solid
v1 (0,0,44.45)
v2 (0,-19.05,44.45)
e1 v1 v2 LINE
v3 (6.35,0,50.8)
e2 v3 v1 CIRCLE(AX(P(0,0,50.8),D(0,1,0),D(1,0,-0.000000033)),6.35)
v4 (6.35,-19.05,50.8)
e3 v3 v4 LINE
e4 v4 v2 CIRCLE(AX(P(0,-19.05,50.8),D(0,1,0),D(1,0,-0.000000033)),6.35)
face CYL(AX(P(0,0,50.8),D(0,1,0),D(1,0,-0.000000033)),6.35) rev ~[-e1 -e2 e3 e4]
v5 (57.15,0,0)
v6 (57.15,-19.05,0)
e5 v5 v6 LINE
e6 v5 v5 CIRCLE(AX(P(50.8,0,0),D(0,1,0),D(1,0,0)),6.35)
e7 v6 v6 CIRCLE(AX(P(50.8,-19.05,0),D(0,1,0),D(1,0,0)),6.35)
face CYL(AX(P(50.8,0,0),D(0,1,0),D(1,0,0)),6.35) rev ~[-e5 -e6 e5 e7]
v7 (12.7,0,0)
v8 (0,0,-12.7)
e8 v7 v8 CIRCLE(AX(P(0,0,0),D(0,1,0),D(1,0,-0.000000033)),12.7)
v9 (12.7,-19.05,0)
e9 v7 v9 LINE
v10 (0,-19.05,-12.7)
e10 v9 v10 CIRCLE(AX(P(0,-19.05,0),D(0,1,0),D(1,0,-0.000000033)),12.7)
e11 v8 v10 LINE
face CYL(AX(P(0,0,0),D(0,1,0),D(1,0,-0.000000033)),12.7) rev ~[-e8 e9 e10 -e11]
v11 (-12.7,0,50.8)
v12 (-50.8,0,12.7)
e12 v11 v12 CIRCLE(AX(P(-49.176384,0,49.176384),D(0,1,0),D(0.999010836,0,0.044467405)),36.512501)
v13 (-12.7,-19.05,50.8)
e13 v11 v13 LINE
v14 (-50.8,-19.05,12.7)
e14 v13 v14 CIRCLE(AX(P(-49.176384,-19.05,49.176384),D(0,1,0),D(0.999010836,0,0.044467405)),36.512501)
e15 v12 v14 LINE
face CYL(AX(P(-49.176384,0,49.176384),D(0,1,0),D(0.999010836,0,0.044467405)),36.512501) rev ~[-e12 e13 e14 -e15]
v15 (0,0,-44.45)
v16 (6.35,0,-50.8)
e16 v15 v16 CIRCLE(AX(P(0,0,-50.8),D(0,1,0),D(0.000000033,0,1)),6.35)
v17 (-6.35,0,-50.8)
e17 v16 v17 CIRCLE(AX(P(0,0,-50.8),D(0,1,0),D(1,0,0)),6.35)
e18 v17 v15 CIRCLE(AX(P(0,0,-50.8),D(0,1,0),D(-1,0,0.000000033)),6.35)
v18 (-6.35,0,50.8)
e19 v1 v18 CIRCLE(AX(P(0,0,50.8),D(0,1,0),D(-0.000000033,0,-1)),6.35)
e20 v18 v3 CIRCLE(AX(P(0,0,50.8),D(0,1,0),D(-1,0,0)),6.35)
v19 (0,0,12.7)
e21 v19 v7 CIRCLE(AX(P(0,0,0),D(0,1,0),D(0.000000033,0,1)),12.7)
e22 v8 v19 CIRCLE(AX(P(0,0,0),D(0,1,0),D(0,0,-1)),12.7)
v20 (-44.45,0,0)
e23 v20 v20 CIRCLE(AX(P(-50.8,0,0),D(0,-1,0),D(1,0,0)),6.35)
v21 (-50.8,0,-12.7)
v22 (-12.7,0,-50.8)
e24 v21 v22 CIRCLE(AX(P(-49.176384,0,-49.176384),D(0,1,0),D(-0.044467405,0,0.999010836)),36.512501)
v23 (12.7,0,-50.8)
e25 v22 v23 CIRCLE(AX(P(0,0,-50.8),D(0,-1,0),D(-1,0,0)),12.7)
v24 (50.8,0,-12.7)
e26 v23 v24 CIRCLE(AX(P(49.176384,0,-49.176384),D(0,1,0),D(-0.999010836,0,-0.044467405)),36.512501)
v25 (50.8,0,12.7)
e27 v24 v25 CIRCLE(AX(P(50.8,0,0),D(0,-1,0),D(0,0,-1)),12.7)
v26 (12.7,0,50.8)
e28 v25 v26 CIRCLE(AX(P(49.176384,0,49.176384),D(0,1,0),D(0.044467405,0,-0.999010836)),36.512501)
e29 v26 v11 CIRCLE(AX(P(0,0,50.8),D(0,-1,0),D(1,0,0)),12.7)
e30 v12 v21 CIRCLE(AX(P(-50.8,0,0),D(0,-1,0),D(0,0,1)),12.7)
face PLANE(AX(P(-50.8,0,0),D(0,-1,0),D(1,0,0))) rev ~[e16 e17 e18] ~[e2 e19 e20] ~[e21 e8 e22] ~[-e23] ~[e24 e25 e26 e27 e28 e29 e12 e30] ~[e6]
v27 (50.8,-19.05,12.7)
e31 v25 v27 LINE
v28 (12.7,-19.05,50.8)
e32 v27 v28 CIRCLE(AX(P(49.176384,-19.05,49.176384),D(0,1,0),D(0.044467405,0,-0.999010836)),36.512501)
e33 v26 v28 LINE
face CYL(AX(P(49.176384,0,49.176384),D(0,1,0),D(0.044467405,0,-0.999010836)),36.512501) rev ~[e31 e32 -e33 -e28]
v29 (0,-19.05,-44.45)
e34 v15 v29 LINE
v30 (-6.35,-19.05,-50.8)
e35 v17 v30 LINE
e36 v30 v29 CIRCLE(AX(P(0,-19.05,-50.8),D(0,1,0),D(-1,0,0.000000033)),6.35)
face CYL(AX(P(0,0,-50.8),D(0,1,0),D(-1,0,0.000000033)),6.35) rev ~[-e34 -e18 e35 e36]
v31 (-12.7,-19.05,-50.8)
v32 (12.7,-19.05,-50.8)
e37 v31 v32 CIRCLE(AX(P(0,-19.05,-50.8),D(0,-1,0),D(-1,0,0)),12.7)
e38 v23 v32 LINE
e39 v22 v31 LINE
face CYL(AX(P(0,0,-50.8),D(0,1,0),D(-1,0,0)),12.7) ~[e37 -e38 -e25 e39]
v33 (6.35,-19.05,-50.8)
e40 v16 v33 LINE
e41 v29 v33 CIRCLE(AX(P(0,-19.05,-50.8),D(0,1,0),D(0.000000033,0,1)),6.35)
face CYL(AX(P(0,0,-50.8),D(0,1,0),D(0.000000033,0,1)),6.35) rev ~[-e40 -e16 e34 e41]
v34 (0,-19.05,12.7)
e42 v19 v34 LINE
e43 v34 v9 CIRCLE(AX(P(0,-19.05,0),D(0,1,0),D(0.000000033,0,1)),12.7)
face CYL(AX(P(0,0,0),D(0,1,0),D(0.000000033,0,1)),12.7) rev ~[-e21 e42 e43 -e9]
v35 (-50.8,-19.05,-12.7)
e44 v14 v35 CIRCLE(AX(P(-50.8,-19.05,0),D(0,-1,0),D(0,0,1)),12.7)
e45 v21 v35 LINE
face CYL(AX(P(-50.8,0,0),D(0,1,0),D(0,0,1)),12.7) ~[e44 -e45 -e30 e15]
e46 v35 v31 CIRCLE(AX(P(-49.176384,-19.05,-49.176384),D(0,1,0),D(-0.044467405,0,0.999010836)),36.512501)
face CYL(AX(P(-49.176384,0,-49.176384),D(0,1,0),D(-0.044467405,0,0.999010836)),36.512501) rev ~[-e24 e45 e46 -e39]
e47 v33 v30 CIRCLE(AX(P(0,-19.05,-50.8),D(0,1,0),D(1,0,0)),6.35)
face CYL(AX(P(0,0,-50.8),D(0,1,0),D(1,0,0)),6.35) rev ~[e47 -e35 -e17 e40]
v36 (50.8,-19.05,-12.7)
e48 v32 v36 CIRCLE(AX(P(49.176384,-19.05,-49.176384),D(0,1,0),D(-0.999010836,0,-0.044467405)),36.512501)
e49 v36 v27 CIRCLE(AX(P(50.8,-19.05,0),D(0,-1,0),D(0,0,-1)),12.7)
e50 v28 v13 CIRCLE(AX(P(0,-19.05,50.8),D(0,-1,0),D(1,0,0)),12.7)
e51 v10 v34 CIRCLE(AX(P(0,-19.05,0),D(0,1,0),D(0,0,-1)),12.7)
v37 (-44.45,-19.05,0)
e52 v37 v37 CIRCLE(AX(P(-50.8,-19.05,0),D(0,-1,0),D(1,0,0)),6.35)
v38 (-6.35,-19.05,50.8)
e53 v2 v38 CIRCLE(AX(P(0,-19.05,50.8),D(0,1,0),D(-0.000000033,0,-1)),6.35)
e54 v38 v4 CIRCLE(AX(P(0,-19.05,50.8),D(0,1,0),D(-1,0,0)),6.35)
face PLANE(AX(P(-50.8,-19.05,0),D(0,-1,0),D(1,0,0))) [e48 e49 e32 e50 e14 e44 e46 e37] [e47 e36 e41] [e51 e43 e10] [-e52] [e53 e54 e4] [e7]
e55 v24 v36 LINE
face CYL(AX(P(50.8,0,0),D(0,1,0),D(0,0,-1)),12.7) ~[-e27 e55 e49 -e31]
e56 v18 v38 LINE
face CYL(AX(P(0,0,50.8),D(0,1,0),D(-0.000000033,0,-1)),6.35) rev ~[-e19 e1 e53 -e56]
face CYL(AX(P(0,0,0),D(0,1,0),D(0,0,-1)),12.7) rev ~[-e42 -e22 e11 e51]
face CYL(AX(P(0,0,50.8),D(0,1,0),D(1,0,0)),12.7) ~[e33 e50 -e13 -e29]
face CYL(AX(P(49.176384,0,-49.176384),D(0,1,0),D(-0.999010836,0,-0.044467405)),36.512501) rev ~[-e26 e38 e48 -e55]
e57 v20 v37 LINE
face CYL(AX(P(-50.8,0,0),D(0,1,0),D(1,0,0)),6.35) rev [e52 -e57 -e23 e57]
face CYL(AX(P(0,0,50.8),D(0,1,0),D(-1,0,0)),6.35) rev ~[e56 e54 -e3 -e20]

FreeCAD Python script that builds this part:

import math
import FreeCAD as App
import Part
import Sketcher
Q = App.Units.Quantity

doc = App.newDocument("Part")
body = doc.addObject("PartDesign::Body", "Body")

sketch1 = body.newObject("Sketcher::SketchObject", "Sketch")
sketch1.AttachmentSupport = (doc.getObject("XZ_Plane"), [""])
sketch1.MapMode = "FlatFace"
sketch1.addGeometry(Part.ArcOfCircle(Part.Circle(App.Vector(-49.176384, 49.176384, 0), App.Vector(0, 0, 1), 36.512501), math.radians(-92.548635), math.radians(2.548635)), False)
sketch1.addGeometry(Part.ArcOfCircle(Part.Circle(App.Vector(-50.8, 0, 0), App.Vector(0, 0, 1), 12.7), math.radians(90), math.radians(270)), False)
sketch1.addGeometry(Part.ArcOfCircle(Part.Circle(App.Vector(-49.176384, -49.176384, 0), App.Vector(0, 0, 1), 36.512501), math.radians(-2.548635), math.radians(92.548635)), False)
sketch1.addGeometry(Part.ArcOfCircle(Part.Circle(App.Vector(0, -50.8, 0), App.Vector(0, 0, 1), 12.7), math.radians(180), math.radians(360)), False)
sketch1.addGeometry(Part.ArcOfCircle(Part.Circle(App.Vector(49.176384, -49.176384, 0), App.Vector(0, 0, 1), 36.512501), math.radians(87.451365), math.radians(182.548635)), False)
sketch1.addGeometry(Part.ArcOfCircle(Part.Circle(App.Vector(50.8, 0, 0), App.Vector(0, 0, 1), 12.7), math.radians(-90), math.radians(90)), False)
sketch1.addGeometry(Part.ArcOfCircle(Part.Circle(App.Vector(49.176384, 49.176384, 0), App.Vector(0, 0, 1), 36.512501), math.radians(177.451365), math.radians(272.548635)), False)
sketch1.addGeometry(Part.ArcOfCircle(Part.Circle(App.Vector(0, 50.8, 0), App.Vector(0, 0, 1), 12.7), math.radians(0), math.radians(180)), False)
sketch1.addGeometry(Part.ArcOfCircle(Part.Circle(App.Vector(0, -50.8, 0), App.Vector(0, 0, 1), 6.35), math.radians(180), math.radians(360)), False)
sketch1.addGeometry(Part.ArcOfCircle(Part.Circle(App.Vector(0, -50.8, 0), App.Vector(0, 0, 1), 6.35), math.radians(90.000002), math.radians(179.999998)), False)
sketch1.addGeometry(Part.ArcOfCircle(Part.Circle(App.Vector(0, -50.8, 0), App.Vector(0, 0, 1), 6.35), math.radians(0.000002), math.radians(89.999998)), False)
sketch1.addGeometry(Part.Circle(App.Vector(50.8, 0, 0), App.Vector(0, 0, 1), 6.35), False)
sketch1.addGeometry(Part.Circle(App.Vector(-50.8, 0, 0), App.Vector(0, 0, 1), 6.35), False)
sketch1.addGeometry(Part.ArcOfCircle(Part.Circle(App.Vector(0, 0, 0), App.Vector(0, 0, 1), 12.7), math.radians(90), math.radians(270)), False)
sketch1.addGeometry(Part.ArcOfCircle(Part.Circle(App.Vector(0, 0, 0), App.Vector(0, 0, 1), 12.7), math.radians(0.000002), math.radians(89.999998)), False)
sketch1.addGeometry(Part.ArcOfCircle(Part.Circle(App.Vector(0, 0, 0), App.Vector(0, 0, 1), 12.7), math.radians(-89.999998), math.radians(-0.000002)), False)
sketch1.addGeometry(Part.ArcOfCircle(Part.Circle(App.Vector(0, 50.8, 0), App.Vector(0, 0, 1), 6.35), math.radians(0), math.radians(180)), False)
sketch1.addGeometry(Part.ArcOfCircle(Part.Circle(App.Vector(0, 50.8, 0), App.Vector(0, 0, 1), 6.35), math.radians(-89.999998), math.radians(-0.000002)), False)
sketch1.addGeometry(Part.ArcOfCircle(Part.Circle(App.Vector(0, 50.8, 0), App.Vector(0, 0, 1), 6.35), math.radians(-179.999998), math.radians(-90.000002)), False)
sketch1.addConstraint(Sketcher.Constraint("Coincident", 0, 1, 1, 1))
sketch1.addConstraint(Sketcher.Constraint("Coincident", 1, 2, 2, 2))
sketch1.addConstraint(Sketcher.Constraint("Coincident", 2, 1, 3, 1))
sketch1.addConstraint(Sketcher.Constraint("Coincident", 3, 2, 4, 2))
sketch1.addConstraint(Sketcher.Constraint("Coincident", 4, 1, 5, 1))
sketch1.addConstraint(Sketcher.Constraint("Coincident", 5, 2, 6, 2))
sketch1.addConstraint(Sketcher.Constraint("Coincident", 6, 1, 7, 1))
sketch1.addConstraint(Sketcher.Constraint("Coincident", 7, 2, 0, 2))
sketch1.addConstraint(Sketcher.Constraint("Tangent", 8, 1, 9, 2))
sketch1.addConstraint(Sketcher.Constraint("Tangent", 9, 1, 10, 2))
sketch1.addConstraint(Sketcher.Constraint("Tangent", 10, 1, 8, 2))
sketch1.addConstraint(Sketcher.Constraint("Tangent", 13, 1, 14, 2))
sketch1.addConstraint(Sketcher.Constraint("Tangent", 14, 1, 15, 2))
sketch1.addConstraint(Sketcher.Constraint("Tangent", 15, 1, 13, 2))
sketch1.addConstraint(Sketcher.Constraint("Tangent", 16, 1, 17, 2))
sketch1.addConstraint(Sketcher.Constraint("Tangent", 17, 1, 18, 2))
sketch1.addConstraint(Sketcher.Constraint("Tangent", 18, 1, 16, 2))
sketch1.addConstraint(Sketcher.Constraint("Coincident", 13, 3, -1, 1))
sketch1.addConstraint(Sketcher.Constraint("Coincident", 8, 3, 3, 3))
sketch1.addConstraint(Sketcher.Constraint("Coincident", 11, 3, 5, 3))
sketch1.addConstraint(Sketcher.Constraint("Coincident", 12, 3, 1, 3))
sketch1.addConstraint(Sketcher.Constraint("Coincident", 16, 3, 7, 3))
sketch1.addConstraint(Sketcher.Constraint("Equal", 0, 2))
sketch1.addConstraint(Sketcher.Constraint("Equal", 1, 3))
sketch1.addConstraint(Sketcher.Constraint("Equal", 2, 4))
sketch1.addConstraint(Sketcher.Constraint("Equal", 3, 5))
sketch1.addConstraint(Sketcher.Constraint("Equal", 4, 6))
sketch1.addConstraint(Sketcher.Constraint("Equal", 5, 7))
sketch1.addConstraint(Sketcher.Constraint("Equal", 10, 11))
sketch1.addConstraint(Sketcher.Constraint("Equal", 11, 12))
sketch1.addConstraint(Sketcher.Constraint("Equal", 7, 13))
sketch1.addConstraint(Sketcher.Constraint("Equal", 12, 16))
sketch1.addConstraint(Sketcher.Constraint("Symmetric", 0, 3, 4, 3, -1, 1))
sketch1.addConstraint(Sketcher.Constraint("Symmetric", 1, 3, 5, 3, -1, 1))
sketch1.addConstraint(Sketcher.Constraint("Symmetric", 2, 3, 6, 3, -1, 1))
sketch1.addConstraint(Sketcher.Constraint("Symmetric", 3, 3, 7, 3, -1, 1))
sketch1.addConstraint(Sketcher.Constraint("Symmetric", 2, 3, 4, 3, -2))
sketch1.addConstraint(Sketcher.Constraint("Symmetric", 8, 1, 10, 1, -2))
sketch1.addConstraint(Sketcher.Constraint("PointOnObject", 1, 3, -1))
sketch1.addConstraint(Sketcher.Constraint("PointOnObject", 9, 1, -2))
sketch1.addConstraint(Sketcher.Constraint("PointOnObject", 13, 1, -2))
sketch1.addConstraint(Sketcher.Constraint("PointOnObject", 14, 1, -1))
sketch1.addConstraint(Sketcher.Constraint("PointOnObject", 15, 1, -2))
sketch1.addConstraint(Sketcher.Constraint("PointOnObject", 17, 1, -2))
sketch1.addConstraint(Sketcher.Constraint("Horizontal", 10, 3, 2, 1))
sketch1.addConstraint(Sketcher.Constraint("Horizontal", 3, 2, 8, 1))
sketch1.addConstraint(Sketcher.Constraint("Horizontal", 7, 2, 16, 1))
sketch1.addConstraint(Sketcher.Constraint("Horizontal", 16, 1, 18, 1))
sketch1.addConstraint(Sketcher.Constraint("Vertical", 12, 3, 0, 1))
sketch1.addConstraint(Sketcher.Constraint("Diameter", 11, Q("0.5 in")))
sketch1.addConstraint(Sketcher.Constraint("Radius", 1, Q("0.5 in")))
sketch1.addConstraint(Sketcher.Constraint("DistanceX", 1, 3, -1, 1, Q("2 in")))
sketch1.addConstraint(Sketcher.Constraint("DistanceY", 3, 3, -1, 1, Q("2 in")))
sketch1.addConstraint(Sketcher.Constraint("Radius", 0, Q("1.4375 in")))
pad1 = body.newObject("PartDesign::Pad", "Pad")
pad1.Profile = sketch1
pad1.Length = Q("0.75 in")

doc.recompute()
